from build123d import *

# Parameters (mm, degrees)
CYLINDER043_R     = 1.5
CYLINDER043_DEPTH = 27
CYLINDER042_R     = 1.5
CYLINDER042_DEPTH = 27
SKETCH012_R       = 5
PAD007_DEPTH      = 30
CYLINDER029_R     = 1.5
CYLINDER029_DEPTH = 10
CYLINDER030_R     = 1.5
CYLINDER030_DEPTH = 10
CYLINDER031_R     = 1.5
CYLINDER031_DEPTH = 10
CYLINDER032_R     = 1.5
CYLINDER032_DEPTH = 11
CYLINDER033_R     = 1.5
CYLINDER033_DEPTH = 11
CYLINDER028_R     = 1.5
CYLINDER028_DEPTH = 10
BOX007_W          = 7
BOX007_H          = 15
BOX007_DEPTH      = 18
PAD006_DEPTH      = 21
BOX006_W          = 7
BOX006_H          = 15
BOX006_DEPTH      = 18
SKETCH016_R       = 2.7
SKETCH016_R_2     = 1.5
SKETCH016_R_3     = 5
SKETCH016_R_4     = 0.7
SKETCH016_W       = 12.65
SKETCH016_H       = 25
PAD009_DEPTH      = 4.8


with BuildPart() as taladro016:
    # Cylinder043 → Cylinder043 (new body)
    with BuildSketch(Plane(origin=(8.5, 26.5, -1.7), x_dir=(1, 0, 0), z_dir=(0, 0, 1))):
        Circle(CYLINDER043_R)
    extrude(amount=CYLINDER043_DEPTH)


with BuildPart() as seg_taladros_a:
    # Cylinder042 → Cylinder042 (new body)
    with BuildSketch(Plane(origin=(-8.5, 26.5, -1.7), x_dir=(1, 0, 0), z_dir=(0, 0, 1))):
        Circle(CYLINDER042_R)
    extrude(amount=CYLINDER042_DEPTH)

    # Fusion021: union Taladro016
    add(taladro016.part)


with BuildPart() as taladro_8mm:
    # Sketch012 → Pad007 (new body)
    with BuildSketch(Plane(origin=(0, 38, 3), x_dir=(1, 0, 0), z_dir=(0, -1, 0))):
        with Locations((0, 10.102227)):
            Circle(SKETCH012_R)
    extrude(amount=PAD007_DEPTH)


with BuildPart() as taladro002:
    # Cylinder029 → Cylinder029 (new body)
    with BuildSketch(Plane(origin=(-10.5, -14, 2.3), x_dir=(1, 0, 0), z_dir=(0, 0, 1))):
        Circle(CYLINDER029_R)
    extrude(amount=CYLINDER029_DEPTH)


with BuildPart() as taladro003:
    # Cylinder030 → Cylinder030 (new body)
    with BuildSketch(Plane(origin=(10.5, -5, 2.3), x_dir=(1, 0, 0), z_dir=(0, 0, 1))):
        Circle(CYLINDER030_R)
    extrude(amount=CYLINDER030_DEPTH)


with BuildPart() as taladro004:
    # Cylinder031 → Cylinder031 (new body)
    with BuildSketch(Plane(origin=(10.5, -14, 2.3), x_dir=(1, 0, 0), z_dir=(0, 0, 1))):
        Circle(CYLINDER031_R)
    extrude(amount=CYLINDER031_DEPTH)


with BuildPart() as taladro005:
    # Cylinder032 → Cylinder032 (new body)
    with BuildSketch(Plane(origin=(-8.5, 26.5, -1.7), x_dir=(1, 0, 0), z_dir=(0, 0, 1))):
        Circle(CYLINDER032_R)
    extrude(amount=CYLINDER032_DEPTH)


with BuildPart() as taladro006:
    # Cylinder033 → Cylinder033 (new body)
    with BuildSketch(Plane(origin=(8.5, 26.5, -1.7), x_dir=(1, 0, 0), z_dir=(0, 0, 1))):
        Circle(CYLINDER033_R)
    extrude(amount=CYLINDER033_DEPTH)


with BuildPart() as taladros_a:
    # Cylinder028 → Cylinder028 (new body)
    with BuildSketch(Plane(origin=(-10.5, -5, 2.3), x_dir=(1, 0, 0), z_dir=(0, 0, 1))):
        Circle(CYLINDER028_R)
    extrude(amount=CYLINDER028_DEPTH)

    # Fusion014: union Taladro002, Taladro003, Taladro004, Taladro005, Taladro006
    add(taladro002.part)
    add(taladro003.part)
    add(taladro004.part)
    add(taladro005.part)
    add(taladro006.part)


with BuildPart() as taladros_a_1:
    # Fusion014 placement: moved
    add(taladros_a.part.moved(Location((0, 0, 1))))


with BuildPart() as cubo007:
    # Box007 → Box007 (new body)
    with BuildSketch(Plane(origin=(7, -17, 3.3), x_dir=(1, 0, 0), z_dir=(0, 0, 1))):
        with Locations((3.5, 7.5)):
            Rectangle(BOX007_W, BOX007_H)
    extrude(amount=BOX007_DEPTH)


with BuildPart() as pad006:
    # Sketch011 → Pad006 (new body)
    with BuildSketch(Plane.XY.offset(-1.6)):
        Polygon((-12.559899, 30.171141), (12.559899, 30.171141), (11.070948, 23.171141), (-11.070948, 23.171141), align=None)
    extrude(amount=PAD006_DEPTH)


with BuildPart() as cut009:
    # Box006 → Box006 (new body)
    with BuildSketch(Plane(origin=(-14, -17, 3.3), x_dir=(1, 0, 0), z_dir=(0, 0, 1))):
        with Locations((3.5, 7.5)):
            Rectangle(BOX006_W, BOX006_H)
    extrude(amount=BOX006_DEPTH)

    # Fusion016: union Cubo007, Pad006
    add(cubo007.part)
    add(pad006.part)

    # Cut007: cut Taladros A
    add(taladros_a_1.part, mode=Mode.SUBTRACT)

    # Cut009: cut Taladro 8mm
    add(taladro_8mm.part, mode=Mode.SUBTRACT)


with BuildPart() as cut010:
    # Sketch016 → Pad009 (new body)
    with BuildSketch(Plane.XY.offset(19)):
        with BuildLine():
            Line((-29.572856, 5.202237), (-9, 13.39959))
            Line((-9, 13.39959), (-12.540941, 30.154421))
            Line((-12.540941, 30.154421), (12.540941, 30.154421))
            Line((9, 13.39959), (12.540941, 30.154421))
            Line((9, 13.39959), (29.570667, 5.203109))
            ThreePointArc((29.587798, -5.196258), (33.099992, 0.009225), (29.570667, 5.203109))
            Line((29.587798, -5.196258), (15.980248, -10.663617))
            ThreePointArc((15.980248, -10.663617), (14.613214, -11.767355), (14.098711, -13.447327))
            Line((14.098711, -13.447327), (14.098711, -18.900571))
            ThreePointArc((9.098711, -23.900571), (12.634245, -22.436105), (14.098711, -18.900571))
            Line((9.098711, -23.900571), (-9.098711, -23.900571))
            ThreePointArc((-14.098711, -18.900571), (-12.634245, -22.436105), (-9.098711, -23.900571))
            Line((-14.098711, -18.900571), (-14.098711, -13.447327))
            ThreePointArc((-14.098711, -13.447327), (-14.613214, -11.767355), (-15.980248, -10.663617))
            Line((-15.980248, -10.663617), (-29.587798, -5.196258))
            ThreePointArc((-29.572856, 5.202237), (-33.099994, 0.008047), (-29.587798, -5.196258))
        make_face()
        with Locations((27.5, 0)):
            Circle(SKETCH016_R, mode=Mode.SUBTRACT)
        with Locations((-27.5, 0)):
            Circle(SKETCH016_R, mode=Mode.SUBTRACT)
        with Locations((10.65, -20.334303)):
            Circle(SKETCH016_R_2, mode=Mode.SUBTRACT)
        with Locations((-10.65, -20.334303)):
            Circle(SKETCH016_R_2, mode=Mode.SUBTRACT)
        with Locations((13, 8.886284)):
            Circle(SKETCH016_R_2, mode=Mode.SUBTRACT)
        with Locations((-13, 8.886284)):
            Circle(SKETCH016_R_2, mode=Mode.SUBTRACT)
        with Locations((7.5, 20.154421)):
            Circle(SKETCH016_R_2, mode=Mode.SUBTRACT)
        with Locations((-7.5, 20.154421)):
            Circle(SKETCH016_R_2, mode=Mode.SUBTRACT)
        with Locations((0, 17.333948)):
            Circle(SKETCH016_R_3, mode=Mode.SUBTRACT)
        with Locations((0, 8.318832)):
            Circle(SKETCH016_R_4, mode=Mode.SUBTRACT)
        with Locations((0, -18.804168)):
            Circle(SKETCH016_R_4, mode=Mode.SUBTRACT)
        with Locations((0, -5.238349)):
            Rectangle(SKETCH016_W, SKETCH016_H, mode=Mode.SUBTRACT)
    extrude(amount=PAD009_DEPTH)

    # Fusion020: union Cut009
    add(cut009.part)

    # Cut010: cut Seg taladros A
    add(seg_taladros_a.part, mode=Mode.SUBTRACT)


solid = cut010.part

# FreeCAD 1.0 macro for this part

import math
import FreeCAD as App
import Part
import Sketcher

V = App.Vector

doc = App.newDocument("Part")
body = doc.addObject("PartDesign::Body", "Body")

sketch1 = doc.addObject("Sketcher::SketchObject", "Sketch")
body.addObject(sketch1)
sketch1.AttachmentSupport = (doc.XY_Plane, [""])
sketch1.MapMode = "FlatFace"
sketch1.AttachmentOffset = App.Placement(V(0, 0, -1.7), App.Rotation())
sketch1.addGeometry(Part.Circle(V(8.5, 26.5, 0), V(0, 0, 1), 1.5), False)
sketch1.addConstraint(Sketcher.Constraint("Diameter", 0, 3.0))
sketch1.addConstraint(Sketcher.Constraint("DistanceX", -1, 1, 0, 3, 8.5))
sketch1.addConstraint(Sketcher.Constraint("DistanceY", -1, 1, 0, 3, 26.5))
pad1 = doc.addObject("PartDesign::Pad", "Pad")
body.addObject(pad1)
pad1.Profile = sketch1
pad1.Length = 27
body2 = doc.addObject("PartDesign::Body", "Body001")
body2.AllowCompound = True

sketch2 = doc.addObject("Sketcher::SketchObject", "Sketch001")
body2.addObject(sketch2)
sketch2.AttachmentSupport = (doc.getObject("XY_Plane001"), [""])
sketch2.MapMode = "FlatFace"
sketch2.AttachmentOffset = App.Placement(V(0, 0, -1.7), App.Rotation())
sketch2.addGeometry(Part.Circle(V(-8.5, 26.5, 0), V(0, 0, 1), 1.5), False)
sketch2.addConstraint(Sketcher.Constraint("Diameter", 0, 3.0))
sketch2.addConstraint(Sketcher.Constraint("DistanceX", 0, 3, -1, 1, 8.5))
sketch2.addConstraint(Sketcher.Constraint("DistanceY", -1, 1, 0, 3, 26.5))
pad2 = doc.addObject("PartDesign::Pad", "Pad001")
body2.addObject(pad2)
pad2.Profile = sketch2
pad2.Length = 27
doc.recompute()

boolean = doc.addObject("PartDesign::Boolean", "Boolean")
body2.addObject(boolean)
boolean.Type = "Fuse"
boolean.addObjects([body])
body3 = doc.addObject("PartDesign::Body", "Body002")

sketch3 = doc.addObject("Sketcher::SketchObject", "Sketch002")
body3.addObject(sketch3)
sketch3.AttachmentSupport = (doc.getObject("XZ_Plane002"), [""])
sketch3.MapMode = "FlatFace"
sketch3.AttachmentOffset = App.Placement(V(0, 0, -38), App.Rotation())
sketch3.addGeometry(Part.Circle(V(0, 13, 0), V(0, 0, 1), 5), False)
sketch3.addConstraint(Sketcher.Constraint("PointOnObject", 0, 3, -2))
sketch3.addConstraint(Sketcher.Constraint("Diameter", 0, 10.0))
sketch3.addConstraint(Sketcher.Constraint("DistanceY", -1, 1, 0, 3, 13.102227))
pad3 = doc.addObject("PartDesign::Pad", "Pad002")
body3.addObject(pad3)
pad3.Profile = sketch3
pad3.Length = 30
body4 = doc.addObject("PartDesign::Body", "Body003")

sketch4 = doc.addObject("Sketcher::SketchObject", "Sketch003")
body4.addObject(sketch4)
sketch4.AttachmentSupport = (doc.getObject("XY_Plane003"), [""])
sketch4.MapMode = "FlatFace"
sketch4.AttachmentOffset = App.Placement(V(0, 0, 2.3), App.Rotation())
sketch4.addGeometry(Part.Circle(V(-10.5, -14, 0), V(0, 0, 1), 1.5), False)
sketch4.addConstraint(Sketcher.Constraint("Diameter", 0, 3.0))
sketch4.addConstraint(Sketcher.Constraint("DistanceY", 0, 3, -1, 1, 14.0))
sketch4.addConstraint(Sketcher.Constraint("DistanceX", 0, 3, -1, 1, 10.5))
pad4 = doc.addObject("PartDesign::Pad", "Pad003")
body4.addObject(pad4)
pad4.Profile = sketch4
pad4.Length = 10
body5 = doc.addObject("PartDesign::Body", "Body004")

sketch5 = doc.addObject("Sketcher::SketchObject", "Sketch004")
body5.addObject(sketch5)
sketch5.AttachmentSupport = (doc.getObject("XY_Plane004"), [""])
sketch5.MapMode = "FlatFace"
sketch5.AttachmentOffset = App.Placement(V(0, 0, 2.3), App.Rotation())
sketch5.addGeometry(Part.Circle(V(10.5, -5, 0), V(0, 0, 1), 1.5), False)
sketch5.addConstraint(Sketcher.Constraint("Diameter", 0, 3.0))
sketch5.addConstraint(Sketcher.Constraint("DistanceY", 0, 3, -1, 1, 5.0))
sketch5.addConstraint(Sketcher.Constraint("DistanceX", -1, 1, 0, 3, 10.5))
pad5 = doc.addObject("PartDesign::Pad", "Pad004")
body5.addObject(pad5)
pad5.Profile = sketch5
pad5.Length = 10
body6 = doc.addObject("PartDesign::Body", "Body005")

sketch6 = doc.addObject("Sketcher::SketchObject", "Sketch005")
body6.addObject(sketch6)
sketch6.AttachmentSupport = (doc.getObject("XY_Plane005"), [""])
sketch6.MapMode = "FlatFace"
sketch6.AttachmentOffset = App.Placement(V(0, 0, 2.3), App.Rotation())
sketch6.addGeometry(Part.Circle(V(10.5, -14, 0), V(0, 0, 1), 1.5), False)
sketch6.addConstraint(Sketcher.Constraint("Diameter", 0, 3.0))
sketch6.addConstraint(Sketcher.Constraint("DistanceY", 0, 3, -1, 1, 14.0))
sketch6.addConstraint(Sketcher.Constraint("DistanceX", -1, 1, 0, 3, 10.5))
pad6 = doc.addObject("PartDesign::Pad", "Pad005")
body6.addObject(pad6)
pad6.Profile = sketch6
pad6.Length = 10
body7 = doc.addObject("PartDesign::Body", "Body006")

sketch7 = doc.addObject("Sketcher::SketchObject", "Sketch006")
body7.addObject(sketch7)
sketch7.AttachmentSupport = (doc.getObject("XY_Plane006"), [""])
sketch7.MapMode = "FlatFace"
sketch7.AttachmentOffset = App.Placement(V(0, 0, -1.7), App.Rotation())
sketch7.addGeometry(Part.Circle(V(-8.5, 26.5, 0), V(0, 0, 1), 1.5), False)
sketch7.addConstraint(Sketcher.Constraint("Diameter", 0, 3.0))
sketch7.addConstraint(Sketcher.Constraint("DistanceX", 0, 3, -1, 1, 8.5))
sketch7.addConstraint(Sketcher.Constraint("DistanceY", -1, 1, 0, 3, 26.5))
pad7 = doc.addObject("PartDesign::Pad", "Pad006")
body7.addObject(pad7)
pad7.Profile = sketch7
pad7.Length = 11
body8 = doc.addObject("PartDesign::Body", "Body007")

sketch8 = doc.addObject("Sketcher::SketchObject", "Sketch007")
body8.addObject(sketch8)
sketch8.AttachmentSupport = (doc.getObject("XY_Plane007"), [""])
sketch8.MapMode = "FlatFace"
sketch8.AttachmentOffset = App.Placement(V(0, 0, -1.7), App.Rotation())
sketch8.addGeometry(Part.Circle(V(8.5, 26.5, 0), V(0, 0, 1), 1.5), False)
sketch8.addConstraint(Sketcher.Constraint("Diameter", 0, 3.0))
sketch8.addConstraint(Sketcher.Constraint("DistanceX", -1, 1, 0, 3, 8.5))
sketch8.addConstraint(Sketcher.Constraint("DistanceY", -1, 1, 0, 3, 26.5))
pad8 = doc.addObject("PartDesign::Pad", "Pad007")
body8.addObject(pad8)
pad8.Profile = sketch8
pad8.Length = 11
body9 = doc.addObject("PartDesign::Body", "Body008")
body9.AllowCompound = True

sketch9 = doc.addObject("Sketcher::SketchObject", "Sketch008")
body9.addObject(sketch9)
sketch9.AttachmentSupport = (doc.getObject("XY_Plane008"), [""])
sketch9.MapMode = "FlatFace"
sketch9.AttachmentOffset = App.Placement(V(0, 0, 2.3), App.Rotation())
sketch9.addGeometry(Part.Circle(V(-10.5, -5, 0), V(0, 0, 1), 1.5), False)
sketch9.addConstraint(Sketcher.Constraint("Diameter", 0, 3.0))
sketch9.addConstraint(Sketcher.Constraint("DistanceY", 0, 3, -1, 1, 5.0))
sketch9.addConstraint(Sketcher.Constraint("DistanceX", 0, 3, -1, 1, 10.5))
pad9 = doc.addObject("PartDesign::Pad", "Pad008")
body9.addObject(pad9)
pad9.Profile = sketch9
pad9.Length = 10
doc.recompute()

boolean2 = doc.addObject("PartDesign::Boolean", "Boolean001")
body9.addObject(boolean2)
boolean2.Type = "Fuse"
boolean2.addObjects([body4])
doc.recompute()

boolean3 = doc.addObject("PartDesign::Boolean", "Boolean002")
body9.addObject(boolean3)
boolean3.Type = "Fuse"
boolean3.addObjects([body5])
doc.recompute()

boolean4 = doc.addObject("PartDesign::Boolean", "Boolean003")
body9.addObject(boolean4)
boolean4.Type = "Fuse"
boolean4.addObjects([body6])
doc.recompute()

boolean5 = doc.addObject("PartDesign::Boolean", "Boolean004")
body9.addObject(boolean5)
boolean5.Type = "Fuse"
boolean5.addObjects([body7])
doc.recompute()

boolean6 = doc.addObject("PartDesign::Boolean", "Boolean005")
body9.addObject(boolean6)
boolean6.Type = "Fuse"
boolean6.addObjects([body8])
body10 = doc.addObject("PartDesign::Body", "Body009")
body10.AllowCompound = True
doc.recompute()

body9.Placement = App.Placement(V(0, 0, 1), App.Rotation(V(0, 0, 1), 0))
boolean7 = doc.addObject("PartDesign::Boolean", "Boolean006")
body10.addObject(boolean7)
boolean7.Type = "Fuse"
boolean7.addObjects([body9])
body11 = doc.addObject("PartDesign::Body", "Body010")

sketch10 = doc.addObject("Sketcher::SketchObject", "Sketch009")
body11.addObject(sketch10)
sketch10.AttachmentSupport = (doc.getObject("XY_Plane010"), [""])
sketch10.MapMode = "FlatFace"
sketch10.AttachmentOffset = App.Placement(V(0, 0, 3.3), App.Rotation())
sketch10.addGeometry(Part.LineSegment(V(7, -2, 0), V(7, -17, 0)), False)
sketch10.addGeometry(Part.LineSegment(V(7, -17, 0), V(14, -17, 0)), False)
sketch10.addGeometry(Part.LineSegment(V(14, -17, 0), V(14, -2, 0)), False)
sketch10.addGeometry(Part.LineSegment(V(14, -2, 0), V(7, -2, 0)), False)
sketch10.addConstraint(Sketcher.Constraint("Coincident", 0, 2, 1, 1))
sketch10.addConstraint(Sketcher.Constraint("Coincident", 1, 2, 2, 1))
sketch10.addConstraint(Sketcher.Constraint("Coincident", 2, 2, 3, 1))
sketch10.addConstraint(Sketcher.Constraint("Coincident", 3, 2, 0, 1))
sketch10.addConstraint(Sketcher.Constraint("Vertical", 0))
sketch10.addConstraint(Sketcher.Constraint("Horizontal", 1))
sketch10.addConstraint(Sketcher.Constraint("Vertical", 2))
sketch10.addConstraint(Sketcher.Constraint("Horizontal", 3))
sketch10.addConstraint(Sketcher.Constraint("DistanceX", 1, 1, 1, 2, 7.0))
sketch10.addConstraint(Sketcher.Constraint("DistanceY", 0, 2, 0, 1, 15.0))
sketch10.addConstraint(Sketcher.Constraint("DistanceX", -1, 1, 0, 2, 7.0))
sketch10.addConstraint(Sketcher.Constraint("DistanceY", 0, 2, -1, 1, 17.0))
pad10 = doc.addObject("PartDesign::Pad", "Pad009")
body11.addObject(pad10)
pad10.Profile = sketch10
pad10.Length = 18
body12 = doc.addObject("PartDesign::Body", "Body011")

sketch11 = doc.addObject("Sketcher::SketchObject", "Sketch010")
body12.addObject(sketch11)
sketch11.AttachmentSupport = (doc.getObject("XY_Plane011"), [""])
sketch11.MapMode = "FlatFace"
sketch11.AttachmentOffset = App.Placement(V(0, 0, -1.6), App.Rotation())
sketch11.addGeometry(Part.LineSegment(V(13, 30, 0), V(-13, 30, 0)), False)
sketch11.addGeometry(Part.LineSegment(V(-13, 30, 0), V(-11, 23, 0)), False)
sketch11.addGeometry(Part.LineSegment(V(-11, 23, 0), V(11, 23, 0)), False)
sketch11.addGeometry(Part.LineSegment(V(11, 23, 0), V(13, 30, 0)), False)
sketch11.addConstraint(Sketcher.Constraint("Coincident", 0, 2, 1, 1))
sketch11.addConstraint(Sketcher.Constraint("Coincident", 1, 2, 2, 1))
sketch11.addConstraint(Sketcher.Constraint("Coincident", 2, 2, 3, 1))
sketch11.addConstraint(Sketcher.Constraint("Coincident", 3, 2, 0, 1))
sketch11.addConstraint(Sketcher.Constraint("Horizontal", 0))
sketch11.addConstraint(Sketcher.Constraint("Horizontal", 2))
sketch11.addConstraint(Sketcher.Constraint("Equal", 1, 3))
sketch11.addConstraint(Sketcher.Constraint("DistanceY", 1, 2, 0, 2, 7.0))
sketch11.addConstraint(Sketcher.Constraint("DistanceX", 0, 2, -1, 1, 12.559899))
sketch11.addConstraint(Sketcher.Constraint("DistanceX", -1, 1, 3, 2, 12.559899))
sketch11.addConstraint(Sketcher.Constraint("DistanceX", 2, 1, 2, 2, 22.141896))
sketch11.addConstraint(Sketcher.Constraint("DistanceY", -1, 1, 0, 2, 30.171141))
pad11 = doc.addObject("PartDesign::Pad", "Pad010")
body12.addObject(pad11)
pad11.Profile = sketch11
pad11.Length = 21
body13 = doc.addObject("PartDesign::Body", "Body012")
body13.AllowCompound = True

sketch12 = doc.addObject("Sketcher::SketchObject", "Sketch011")
body13.addObject(sketch12)
sketch12.AttachmentSupport = (doc.getObject("XY_Plane012"), [""])
sketch12.MapMode = "FlatFace"
sketch12.AttachmentOffset = App.Placement(V(0, 0, 3.3), App.Rotation())
sketch12.addGeometry(Part.LineSegment(V(-14, -2, 0), V(-14, -17, 0)), False)
sketch12.addGeometry(Part.LineSegment(V(-14, -17, 0), V(-7, -17, 0)), False)
sketch12.addGeometry(Part.LineSegment(V(-7, -17, 0), V(-7, -2, 0)), False)
sketch12.addGeometry(Part.LineSegment(V(-7, -2, 0), V(-14, -2, 0)), False)
sketch12.addConstraint(Sketcher.Constraint("Coincident", 0, 2, 1, 1))
sketch12.addConstraint(Sketcher.Constraint("Coincident", 1, 2, 2, 1))
sketch12.addConstraint(Sketcher.Constraint("Coincident", 2, 2, 3, 1))
sketch12.addConstraint(Sketcher.Constraint("Coincident", 3, 2, 0, 1))
sketch12.addConstraint(Sketcher.Constraint("Vertical", 0))
sketch12.addConstraint(Sketcher.Constraint("Horizontal", 1))
sketch12.addConstraint(Sketcher.Constraint("Vertical", 2))
sketch12.addConstraint(Sketcher.Constraint("Horizontal", 3))
sketch12.addConstraint(Sketcher.Constraint("DistanceX", 1, 1, 1, 2, 7.0))
sketch12.addConstraint(Sketcher.Constraint("DistanceY", 0, 2, 0, 1, 15.0))
sketch12.addConstraint(Sketcher.Constraint("DistanceX", 0, 2, -1, 1, 14.0))
sketch12.addConstraint(Sketcher.Constraint("DistanceY", 0, 2, -1, 1, 17.0))
pad12 = doc.addObject("PartDesign::Pad", "Pad011")
body13.addObject(pad12)
pad12.Profile = sketch12
pad12.Length = 18
doc.recompute()

boolean8 = doc.addObject("PartDesign::Boolean", "Boolean007")
body13.addObject(boolean8)
boolean8.Type = "Fuse"
boolean8.addObjects([body11])
doc.recompute()

boolean9 = doc.addObject("PartDesign::Boolean", "Boolean008")
body13.addObject(boolean9)
boolean9.Type = "Fuse"
boolean9.addObjects([body12])
doc.recompute()

boolean10 = doc.addObject("PartDesign::Boolean", "Boolean009")
body13.addObject(boolean10)
boolean10.Type = "Cut"
boolean10.addObjects([body10])
doc.recompute()

boolean11 = doc.addObject("PartDesign::Boolean", "Boolean010")
body13.addObject(boolean11)
boolean11.Type = "Cut"
boolean11.addObjects([body3])
body14 = doc.addObject("PartDesign::Body", "Body013")

sketch13 = doc.addObject("Sketcher::SketchObject", "Sketch012")
body14.addObject(sketch13)
sketch13.AttachmentSupport = (doc.getObject("XY_Plane013"), [""])
sketch13.MapMode = "FlatFace"
sketch13.AttachmentOffset = App.Placement(V(0, 0, 19), App.Rotation())
sketch13.addGeometry(Part.LineSegment(V(-9, 13.4, 0), V(-29.6, 5.2, 0)), False)
sketch13.addGeometry(Part.ArcOfCircle(Part.Circle(V(-27.5, 0, 0), V(0, 0, 1), 5.6), math.radians(112), math.radians(248)), False)
sketch13.addGeometry(Part.LineSegment(V(-29.6, -5.2, 0), V(-16, -10.7, 0)), False)
sketch13.addGeometry(Part.ArcOfCircle(Part.Circle(V(-17.1, -13.4, 0), V(0, 0, 1), 3), math.radians(0), math.radians(68)), False)
sketch13.addGeometry(Part.LineSegment(V(-14.1, -13.4, 0), V(-14.1, -18.9, 0)), False)
sketch13.addGeometry(Part.ArcOfCircle(Part.Circle(V(-9.1, -18.9, 0), V(0, 0, 1), 5), math.radians(180), math.radians(270)), False)
sketch13.addGeometry(Part.LineSegment(V(-9.1, -23.9, 0), V(9.1, -23.9, 0)), False)
sketch13.addGeometry(Part.ArcOfCircle(Part.Circle(V(9.1, -18.9, 0), V(0, 0, 1), 5), math.radians(-90), math.radians(0)), False)
sketch13.addGeometry(Part.LineSegment(V(14.1, -18.9, 0), V(14.1, -13.4, 0)), False)
sketch13.addGeometry(Part.ArcOfCircle(Part.Circle(V(17.1, -13.4, 0), V(0, 0, 1), 3), math.radians(112), math.radians(180)), False)
sketch13.addGeometry(Part.LineSegment(V(16, -10.7, 0), V(29.6, -5.2, 0)), False)
sketch13.addGeometry(Part.ArcOfCircle(Part.Circle(V(27.5, 0, 0), V(0, 0, 1), 5.6), math.radians(-68), math.radians(68)), False)
sketch13.addGeometry(Part.LineSegment(V(29.6, 5.2, 0), V(9, 13.4, 0)), False)
sketch13.addGeometry(Part.LineSegment(V(9, 13.4, 0), V(12.5, 30.2, 0)), False)
sketch13.addGeometry(Part.LineSegment(V(12.5, 30.2, 0), V(-12.5, 30.2, 0)), False)
sketch13.addGeometry(Part.LineSegment(V(-12.5, 30.2, 0), V(-9, 13.4, 0)), False)
sketch13.addGeometry(Part.Circle(V(10.7, -20.3, 0), V(0, 0, 1), 1.5), False)
sketch13.addGeometry(Part.Circle(V(0, -18.8, 0), V(0, 0, 1), 0.7), False)
sketch13.addGeometry(Part.Circle(V(27.5, 0, 0), V(0, 0, 1), 2.7), False)
sketch13.addGeometry(Part.LineSegment(V(-6.3, -17.7, 0), V(-6.3, 7.3, 0)), False)
sketch13.addGeometry(Part.LineSegment(V(-6.3, 7.3, 0), V(6.3, 7.3, 0)), False)
sketch13.addGeometry(Part.LineSegment(V(6.3, 7.3, 0), V(6.3, -17.7, 0)), False)
sketch13.addGeometry(Part.LineSegment(V(6.3, -17.7, 0), V(-6.3, -17.7, 0)), False)
sketch13.addGeometry(Part.Circle(V(-10.7, -20.3, 0), V(0, 0, 1), 1.5), False)
sketch13.addGeometry(Part.Circle(V(-27.5, 0, 0), V(0, 0, 1), 2.7), False)
sketch13.addGeometry(Part.Circle(V(13, 8.9, 0), V(0, 0, 1), 1.5), False)
sketch13.addGeometry(Part.Circle(V(0, 8.3, 0), V(0, 0, 1), 0.7), False)
sketch13.addGeometry(Part.Circle(V(0, 17.3, 0), V(0, 0, 1), 5), False)
sketch13.addGeometry(Part.Circle(V(7.5, 20.2, 0), V(0, 0, 1), 1.5), False)
sketch13.addGeometry(Part.Circle(V(-13, 8.9, 0), V(0, 0, 1), 1.5), False)
sketch13.addGeometry(Part.Circle(V(-7.5, 20.2, 0), V(0, 0, 1), 1.5), False)
sketch13.addConstraint(Sketcher.Constraint("Tangent", 0, 2, 1, 1))
sketch13.addConstraint(Sketcher.Constraint("Tangent", 1, 2, 2, 1))
sketch13.addConstraint(Sketcher.Constraint("Tangent", 2, 2, 3, 2))
sketch13.addConstraint(Sketcher.Constraint("Tangent", 3, 1, 4, 1))
sketch13.addConstraint(Sketcher.Constraint("Tangent", 4, 2, 5, 1))
sketch13.addConstraint(Sketcher.Constraint("Tangent", 5, 2, 6, 1))
sketch13.addConstraint(Sketcher.Constraint("Tangent", 6, 2, 7, 1))
sketch13.addConstraint(Sketcher.Constraint("Tangent", 7, 2, 8, 1))
sketch13.addConstraint(Sketcher.Constraint("Tangent", 8, 2, 9, 2))
sketch13.addConstraint(Sketcher.Constraint("Tangent", 9, 1, 10, 1))
sketch13.addConstraint(Sketcher.Constraint("Tangent", 10, 2, 11, 1))
sketch13.addConstraint(Sketcher.Constraint("Coincident", 11, 2, 12, 1))
sketch13.addConstraint(Sketcher.Constraint("Coincident", 12, 2, 13, 1))
sketch13.addConstraint(Sketcher.Constraint("Coincident", 13, 2, 14, 1))
sketch13.addConstraint(Sketcher.Constraint("Coincident", 14, 2, 15, 1))
sketch13.addConstraint(Sketcher.Constraint("Coincident", 15, 2, 0, 1))
sketch13.addConstraint(Sketcher.Constraint("Coincident", 19, 2, 20, 1))
sketch13.addConstraint(Sketcher.Constraint("Coincident", 20, 2, 21, 1))
sketch13.addConstraint(Sketcher.Constraint("Coincident", 21, 2, 22, 1))
sketch13.addConstraint(Sketcher.Constraint("Coincident", 22, 2, 19, 1))
sketch13.addConstraint(Sketcher.Constraint("Vertical", 4))
sketch13.addConstraint(Sketcher.Constraint("Horizontal", 6))
sketch13.addConstraint(Sketcher.Constraint("Vertical", 8))
sketch13.addConstraint(Sketcher.Constraint("Horizontal", 14))
sketch13.addConstraint(Sketcher.Constraint("Vertical", 19))
sketch13.addConstraint(Sketcher.Constraint("Horizontal", 20))
sketch13.addConstraint(Sketcher.Constraint("Vertical", 21))
sketch13.addConstraint(Sketcher.Constraint("Horizontal", 22))
sketch13.addConstraint(Sketcher.Constraint("Coincident", 18, 3, 11, 3))
sketch13.addConstraint(Sketcher.Constraint("Coincident", 24, 3, 1, 3))
sketch13.addConstraint(Sketcher.Constraint("Equal", 5, 7))
sketch13.addConstraint(Sketcher.Constraint("Equal", 3, 9))
sketch13.addConstraint(Sketcher.Constraint("Equal", 1, 11))
sketch13.addConstraint(Sketcher.Constraint("Equal", 16, 23))
sketch13.addConstraint(Sketcher.Constraint("Equal", 18, 24))
sketch13.addConstraint(Sketcher.Constraint("Equal", 23, 25))
sketch13.addConstraint(Sketcher.Constraint("Equal", 17, 26))
sketch13.addConstraint(Sketcher.Constraint("Equal", 7, 27))
sketch13.addConstraint(Sketcher.Constraint("Equal", 25, 28))
sketch13.addConstraint(Sketcher.Constraint("Equal", 28, 29))
sketch13.addConstraint(Sketcher.Constraint("Equal", 29, 30))
sketch13.addConstraint(Sketcher.Constraint("Symmetric", 1, 3, 11, 3, -1, 1))
sketch13.addConstraint(Sketcher.Constraint("Symmetric", 3, 3, 9, 3, -2))
sketch13.addConstraint(Sketcher.Constraint("Symmetric", 16, 3, 23, 3, -2))
sketch13.addConstraint(Sketcher.Constraint("Symmetric", 25, 3, 29, 3, -2))
sketch13.addConstraint(Sketcher.Constraint("Symmetric", 28, 3, 30, 3, -2))
sketch13.addConstraint(Sketcher.Constraint("Symmetric", 12, 2, 15, 2, -2))
sketch13.addConstraint(Sketcher.Constraint("PointOnObject", 1, 3, -1))
sketch13.addConstraint(Sketcher.Constraint("PointOnObject", 17, 3, -2))
sketch13.addConstraint(Sketcher.Constraint("PointOnObject", 26, 3, -2))
sketch13.addConstraint(Sketcher.Constraint("PointOnObject", 27, 3, -2))
sketch13.addConstraint(Sketcher.Constraint("Equal", 13, 15))
sketch13.addConstraint(Sketcher.Constraint("Diameter", 16, 3.0))
sketch13.addConstraint(Sketcher.Constraint("Diameter", 27, 10.0))
sketch13.addConstraint(Sketcher.Constraint("Radius", 3, 2.999999))
sketch13.addConstraint(Sketcher.Constraint("Diameter", 17, 1.4))
sketch13.addConstraint(Sketcher.Constraint("Diameter", 18, 5.4))
sketch13.addConstraint(Sketcher.Constraint("Radius", 1, 5.6))
sketch13.addConstraint(Sketcher.Constraint("DistanceY", 19, 1, 19, 2, 25.0))
sketch13.addConstraint(Sketcher.Constraint("DistanceX", -1, 1, 25, 3, 13.0))
sketch13.addConstraint(Sketcher.Constraint("DistanceX", -1, 1, 12, 2, 9.0))
sketch13.addConstraint(Sketcher.Constraint("DistanceX", 1, 3, 11, 3, 54.999999))
sketch13.addConstraint(Sketcher.Constraint("DistanceX", 28, 3, 11, 3, 19.999999))
sketch13.addConstraint(Sketcher.Constraint("DistanceY", 28, 3, 13, 2, 10.0))
sketch13.addConstraint(Sketcher.Constraint("DistanceX", 20, 1, 20, 2, 12.65))
sketch13.addConstraint(Sketcher.Constraint("DistanceX", 23, 3, 16, 3, 21.3))
sketch13.addConstraint(Sketcher.Constraint("DistanceX", 19, 2, -1, 1, 6.325))
sketch13.addConstraint(Sketcher.Constraint("DistanceY", 17, 3, 26, 3, 27.123))
sketch13.addConstraint(Sketcher.Constraint("Distance", 12, 22.143501))
sketch13.addConstraint(Sketcher.Constraint("DistanceX", 6, 1, 6, 2, 18.197422))
sketch13.addConstraint(Sketcher.Constraint("DistanceX", 14, 2, 14, 1, 25.081882))
sketch13.addConstraint(Sketcher.Constraint("DistanceX", 1, 2, -1, 1, 29.587798))
sketch13.addConstraint(Sketcher.Constraint("DistanceY", 4, 2, 4, 1, 5.453244))
sketch13.addConstraint(Sketcher.Constraint("DistanceY", 17, 3, -1, 1, 18.804168))
sketch13.addConstraint(Sketcher.Constraint("DistanceY", -1, 1, 28, 3, 20.154421))
sketch13.addConstraint(Sketcher.Constraint("DistanceY", -1, 1, 11, 2, 5.203109))
sketch13.addConstraint(Sketcher.Constraint("DistanceY", -1, 1, 19, 2, 7.261651))
sketch13.addConstraint(Sketcher.Constraint("DistanceY", 16, 3, 7, 3, 1.433732))
sketch13.addConstraint(Sketcher.Constraint("DistanceY", 9, 3, 25, 3, 22.33361))
sketch13.addConstraint(Sketcher.Constraint("DistanceY", -1, 1, 27, 3, 17.333948))
pad13 = doc.addObject("PartDesign::Pad", "Pad012")
body14.addObject(pad13)
pad13.Profile = sketch13
pad13.Length = 4.8
doc.recompute()

boolean12 = doc.addObject("PartDesign::Boolean", "Boolean011")
body14.addObject(boolean12)
boolean12.Type = "Fuse"
boolean12.addObjects([body13])
doc.recompute()

boolean13 = doc.addObject("PartDesign::Boolean", "Boolean012")
body14.addObject(boolean13)
boolean13.Type = "Cut"
boolean13.addObjects([body2])

doc.recompute()
